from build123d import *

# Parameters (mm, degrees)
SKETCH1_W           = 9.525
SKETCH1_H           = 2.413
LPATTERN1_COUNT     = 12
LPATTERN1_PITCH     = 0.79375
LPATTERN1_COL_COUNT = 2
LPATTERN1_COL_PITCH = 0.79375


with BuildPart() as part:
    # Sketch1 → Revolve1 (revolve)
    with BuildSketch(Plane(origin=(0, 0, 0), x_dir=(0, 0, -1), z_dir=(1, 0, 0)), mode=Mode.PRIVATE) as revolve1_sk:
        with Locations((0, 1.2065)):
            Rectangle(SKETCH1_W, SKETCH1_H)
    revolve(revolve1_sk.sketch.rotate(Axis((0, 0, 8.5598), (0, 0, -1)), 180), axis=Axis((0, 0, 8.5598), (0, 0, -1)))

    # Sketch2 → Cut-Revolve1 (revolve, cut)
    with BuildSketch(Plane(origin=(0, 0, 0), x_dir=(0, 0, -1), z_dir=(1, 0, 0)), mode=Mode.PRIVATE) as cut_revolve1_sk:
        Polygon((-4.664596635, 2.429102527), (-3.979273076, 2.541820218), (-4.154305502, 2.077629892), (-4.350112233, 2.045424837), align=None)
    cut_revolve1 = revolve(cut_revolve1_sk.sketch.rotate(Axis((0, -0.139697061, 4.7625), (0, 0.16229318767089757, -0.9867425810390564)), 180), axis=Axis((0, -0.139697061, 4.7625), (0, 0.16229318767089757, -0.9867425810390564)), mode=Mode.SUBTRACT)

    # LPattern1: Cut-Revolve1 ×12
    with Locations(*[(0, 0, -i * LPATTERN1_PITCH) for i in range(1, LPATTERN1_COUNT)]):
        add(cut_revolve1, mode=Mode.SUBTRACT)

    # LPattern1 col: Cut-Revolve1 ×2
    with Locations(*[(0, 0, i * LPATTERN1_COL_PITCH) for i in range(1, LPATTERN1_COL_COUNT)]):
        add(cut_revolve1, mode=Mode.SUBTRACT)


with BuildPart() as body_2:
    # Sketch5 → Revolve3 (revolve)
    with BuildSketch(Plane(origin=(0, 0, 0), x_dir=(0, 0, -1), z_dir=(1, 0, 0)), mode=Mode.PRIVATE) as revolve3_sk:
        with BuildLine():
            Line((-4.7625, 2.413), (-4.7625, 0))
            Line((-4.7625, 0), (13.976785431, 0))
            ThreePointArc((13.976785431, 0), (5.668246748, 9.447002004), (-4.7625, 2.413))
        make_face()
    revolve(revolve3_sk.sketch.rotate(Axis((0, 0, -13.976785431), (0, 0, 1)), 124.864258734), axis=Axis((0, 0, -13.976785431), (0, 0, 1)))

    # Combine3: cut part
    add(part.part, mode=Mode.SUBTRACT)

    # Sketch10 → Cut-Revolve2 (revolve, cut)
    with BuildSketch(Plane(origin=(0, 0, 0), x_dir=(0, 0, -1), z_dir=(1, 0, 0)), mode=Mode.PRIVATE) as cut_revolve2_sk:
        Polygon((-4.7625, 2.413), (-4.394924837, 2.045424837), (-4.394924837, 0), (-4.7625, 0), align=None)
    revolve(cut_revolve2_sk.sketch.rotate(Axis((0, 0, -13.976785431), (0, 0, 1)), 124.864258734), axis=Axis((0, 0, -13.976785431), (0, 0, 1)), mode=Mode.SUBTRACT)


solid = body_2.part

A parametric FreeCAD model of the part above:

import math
import FreeCAD as App
import Part
import Sketcher

V = App.Vector
Q = App.Units.Quantity

doc = App.newDocument("Part")
params = doc.addObject("Spreadsheet::Sheet", "Params")
for row, (alias, value) in enumerate([
    ("sketch1_width", "0.095 in"),
    ("sketch1_height", "0.375 in"),
    ("revolution_angle", "360 deg"),
    ("groove_angle", "360 deg"),
    ("linearpattern_pitch", "0.03125 in"),
    ("linearpattern2_pitch", "0.03125 in"),
    ("sketch3_radius", "0.375 in"),
    ("sketch3_width", "0.095 in"),
    ("revolution2_angle", "360 deg"),
    ("sketch4_width", "0.095 in"),
    ("groove2_angle", "360 deg"),
], start=1):
    params.set(f"A{row}", alias)
    params.set(f"B{row}", "=" + value)
    params.setAlias(f"B{row}", alias)

body = doc.addObject("PartDesign::Body", "Body")

# Sketch on YZ plane
sketch1 = body.newObject("Sketcher::SketchObject", "Sketch")
sketch1.AttachmentSupport = (doc.getObject("YZ_Plane"), [""])
sketch1.MapMode = "FlatFace"
sketch1.addGeometry([
    Part.LineSegment(V(2.4, 4.8, 0), V(0, 4.8, 0)),
    Part.LineSegment(V(0, 4.8, 0), V(0, -4.8, 0)),
    Part.LineSegment(V(0, -4.8, 0), V(2.4, -4.8, 0)),
    Part.LineSegment(V(2.4, -4.8, 0), V(2.4, 4.8, 0)),
], False)
sketch1.addConstraint([
    Sketcher.Constraint("Coincident", 0, 2, 1, 1),
    Sketcher.Constraint("Coincident", 1, 2, 2, 1),
    Sketcher.Constraint("Coincident", 2, 2, 3, 1),
    Sketcher.Constraint("Coincident", 3, 2, 0, 1),
    Sketcher.Constraint("Horizontal", 0),
    Sketcher.Constraint("Vertical", 1),
    Sketcher.Constraint("Horizontal", 2),
    Sketcher.Constraint("Vertical", 3),
    Sketcher.Constraint("Symmetric", 0, 2, 1, 2, -1, 1),
    Sketcher.Constraint("DistanceX", 0, 2, 0, 1, Q("0.095 in")),
    Sketcher.Constraint("DistanceY", 1, 2, 1, 1, Q("0.375 in")),
])
sketch1.setExpression("Constraints[9]", "Params.sketch1_width")
sketch1.setExpression("Constraints[10]", "Params.sketch1_height")
revolution = body.newObject("PartDesign::Revolution", "Revolution")
revolution.Profile = sketch1
revolution.ReferenceAxis = (sketch1, ["V_Axis"])
revolution.setExpression("Angle", "Params.revolution_angle")

# Sketch on YZ plane
sketch2 = body.newObject("Sketcher::SketchObject", "Sketch001")
sketch2.AttachmentSupport = (doc.getObject("YZ_Plane"), [""])
sketch2.MapMode = "FlatFace"
sketch2.addGeometry([
    Part.LineSegment(V(2.54, 3.98, 0), V(2.43, 4.66, 0)),
    Part.LineSegment(V(2.43, 4.66, 0), V(2.05, 4.35, 0)),
    Part.LineSegment(V(2.05, 4.35, 0), V(2.08, 4.15, 0)),
    Part.LineSegment(V(2.08, 4.15, 0), V(2.54, 3.98, 0)),
], False)
sketch2.addGeometry(Part.LineSegment(V(-0.06, 4.26, 0), V(0.06, 3.57, 0)), True)  # axis
sketch2.addConstraint([
    Sketcher.Constraint("Coincident", 0, 2, 1, 1),
    Sketcher.Constraint("Coincident", 1, 2, 2, 1),
    Sketcher.Constraint("Coincident", 2, 2, 3, 1),
    Sketcher.Constraint("Coincident", 3, 2, 0, 1),
    Sketcher.Constraint("Parallel", 0, 2),
    Sketcher.Constraint("Parallel", 2, 4),
    Sketcher.Constraint("Equal", 1, 3),
    Sketcher.Constraint("Equal", 0, 4),
    Sketcher.Constraint("DistanceY", 3, 2, 1, 2, Q("0.0146 in")),
    Sketcher.Constraint("DistanceY", 2, 2, 4, 1, 0.101498),
    Sketcher.Constraint("Distance", 0, 0.694531),
    Sketcher.Constraint("DistanceX", -1, 1, 2, 2, 2.07763),
    Sketcher.Constraint("DistanceX", -1, 1, 3, 2, 2.54182),
    Sketcher.Constraint("DistanceX", 4, 1, -1, 1, 0.056359),
    Sketcher.Constraint("DistanceX", -1, 1, 4, 2, 0.056359),
    Sketcher.Constraint("DistanceY", -1, 1, 4, 2, 3.57048),
])
groove = body.newObject("PartDesign::Groove", "Groove")
groove.Profile = sketch2
groove.ReferenceAxis = (sketch2, ["Axis0"])
groove.setExpression("Angle", "Params.groove_angle")
doc.recompute()

linearpattern = body.newObject("PartDesign::LinearPattern", "LinearPattern")
linearpattern.Originals = [groove]
linearpattern.Direction = (doc.getObject("Z_Axis"), [""])
linearpattern.Mode = "offset"
linearpattern.setExpression("Offset", "Params.linearpattern_pitch")
linearpattern.Occurrences = 12
linearpattern.Reversed = True
body.Tip = linearpattern
doc.recompute()

linearpattern2 = body.newObject("PartDesign::LinearPattern", "LinearPattern001")
linearpattern2.Originals = [groove]
linearpattern2.Direction = (doc.getObject("Z_Axis"), [""])
linearpattern2.Mode = "offset"
linearpattern2.setExpression("Offset", "Params.linearpattern2_pitch")
linearpattern2.Occurrences = 2
body.Tip = linearpattern2
body2 = doc.addObject("PartDesign::Body", "Body001")

# Sketch on YZ plane
sketch3 = body2.newObject("Sketcher::SketchObject", "Sketch002")
sketch3.AttachmentSupport = (doc.getObject("YZ_Plane001"), [""])
sketch3.MapMode = "FlatFace"
sketch3.addGeometry([
    Part.LineSegment(V(2.4, 4.8, 0), V(0, 4.8, 0)),
    Part.LineSegment(V(0, 4.8, 0), V(0, -14, 0)),
    Part.ArcOfCircle(Part.Circle(V(0, -4.5, 0), V(0, 0, 1), 9.5), math.radians(-90), math.radians(75)),
], False)
sketch3.addConstraint([
    Sketcher.Constraint("Coincident", 0, 2, 1, 1),
    Sketcher.Constraint("Coincident", 1, 2, 2, 1),
    Sketcher.Constraint("Coincident", 2, 2, 0, 1),
    Sketcher.Constraint("Horizontal", 0),
    Sketcher.Constraint("Vertical", 1),
    Sketcher.Constraint("PointOnObject", 2, 3, -2),
    Sketcher.Constraint("PointOnObject", 0, 2, -2),
    Sketcher.Constraint("Radius", 2, Q("0.375 in")),
    Sketcher.Constraint("DistanceX", 0, 2, 0, 1, Q("0.095 in")),
    Sketcher.Constraint("DistanceY", -1, 1, 0, 2, Q("0.1875 in")),
])
sketch3.setExpression("Constraints[7]", "Params.sketch3_radius")
sketch3.setExpression("Constraints[8]", "Params.sketch3_width")
revolution2 = body2.newObject("PartDesign::Revolution", "Revolution001")
revolution2.Profile = sketch3
revolution2.ReferenceAxis = (sketch3, ["V_Axis"])
revolution2.setExpression("Angle", "Params.revolution2_angle")
doc.recompute()

boolean = body2.newObject("PartDesign::Boolean", "Boolean")
boolean.Type = "Cut"
boolean.addObjects([body])

# Sketch on YZ plane
sketch4 = body2.newObject("Sketcher::SketchObject", "Sketch003")
sketch4.AttachmentSupport = (doc.getObject("YZ_Plane001"), [""])
sketch4.MapMode = "FlatFace"
sketch4.addGeometry([
    Part.LineSegment(V(2.05, 4.39, 0), V(2.41, 4.76, 0)),
    Part.LineSegment(V(2.41, 4.76, 0), V(0, 4.76, 0)),
    Part.LineSegment(V(0, 4.76, 0), V(0, 4.39, 0)),
    Part.LineSegment(V(0, 4.39, 0), V(2.05, 4.39, 0)),
], False)
sketch4.addConstraint([
    Sketcher.Constraint("Coincident", 0, 2, 1, 1),
    Sketcher.Constraint("Coincident", 1, 2, 2, 1),
    Sketcher.Constraint("Coincident", 2, 2, 3, 1),
    Sketcher.Constraint("Coincident", 3, 2, 0, 1),
    Sketcher.Constraint("Horizontal", 1),
    Sketcher.Constraint("Vertical", 2),
    Sketcher.Constraint("Horizontal", 3),
    Sketcher.Constraint("PointOnObject", 1, 2, -2),
    Sketcher.Constraint("Angle", 0, Q("45 deg")),
    Sketcher.Constraint("DistanceX", 1, 2, 1, 1, Q("0.095 in")),
    Sketcher.Constraint("DistanceY", -1, 1, 0, 2, Q("0.1875 in")),
    Sketcher.Constraint("Distance", 0, 0.51983),
])
sketch4.setExpression("Constraints[9]", "Params.sketch4_width")
groove2 = body2.newObject("PartDesign::Groove", "Groove001")
groove2.Profile = sketch4
groove2.ReferenceAxis = (sketch4, ["V_Axis"])
groove2.setExpression("Angle", "Params.groove2_angle")

doc.recompute()
